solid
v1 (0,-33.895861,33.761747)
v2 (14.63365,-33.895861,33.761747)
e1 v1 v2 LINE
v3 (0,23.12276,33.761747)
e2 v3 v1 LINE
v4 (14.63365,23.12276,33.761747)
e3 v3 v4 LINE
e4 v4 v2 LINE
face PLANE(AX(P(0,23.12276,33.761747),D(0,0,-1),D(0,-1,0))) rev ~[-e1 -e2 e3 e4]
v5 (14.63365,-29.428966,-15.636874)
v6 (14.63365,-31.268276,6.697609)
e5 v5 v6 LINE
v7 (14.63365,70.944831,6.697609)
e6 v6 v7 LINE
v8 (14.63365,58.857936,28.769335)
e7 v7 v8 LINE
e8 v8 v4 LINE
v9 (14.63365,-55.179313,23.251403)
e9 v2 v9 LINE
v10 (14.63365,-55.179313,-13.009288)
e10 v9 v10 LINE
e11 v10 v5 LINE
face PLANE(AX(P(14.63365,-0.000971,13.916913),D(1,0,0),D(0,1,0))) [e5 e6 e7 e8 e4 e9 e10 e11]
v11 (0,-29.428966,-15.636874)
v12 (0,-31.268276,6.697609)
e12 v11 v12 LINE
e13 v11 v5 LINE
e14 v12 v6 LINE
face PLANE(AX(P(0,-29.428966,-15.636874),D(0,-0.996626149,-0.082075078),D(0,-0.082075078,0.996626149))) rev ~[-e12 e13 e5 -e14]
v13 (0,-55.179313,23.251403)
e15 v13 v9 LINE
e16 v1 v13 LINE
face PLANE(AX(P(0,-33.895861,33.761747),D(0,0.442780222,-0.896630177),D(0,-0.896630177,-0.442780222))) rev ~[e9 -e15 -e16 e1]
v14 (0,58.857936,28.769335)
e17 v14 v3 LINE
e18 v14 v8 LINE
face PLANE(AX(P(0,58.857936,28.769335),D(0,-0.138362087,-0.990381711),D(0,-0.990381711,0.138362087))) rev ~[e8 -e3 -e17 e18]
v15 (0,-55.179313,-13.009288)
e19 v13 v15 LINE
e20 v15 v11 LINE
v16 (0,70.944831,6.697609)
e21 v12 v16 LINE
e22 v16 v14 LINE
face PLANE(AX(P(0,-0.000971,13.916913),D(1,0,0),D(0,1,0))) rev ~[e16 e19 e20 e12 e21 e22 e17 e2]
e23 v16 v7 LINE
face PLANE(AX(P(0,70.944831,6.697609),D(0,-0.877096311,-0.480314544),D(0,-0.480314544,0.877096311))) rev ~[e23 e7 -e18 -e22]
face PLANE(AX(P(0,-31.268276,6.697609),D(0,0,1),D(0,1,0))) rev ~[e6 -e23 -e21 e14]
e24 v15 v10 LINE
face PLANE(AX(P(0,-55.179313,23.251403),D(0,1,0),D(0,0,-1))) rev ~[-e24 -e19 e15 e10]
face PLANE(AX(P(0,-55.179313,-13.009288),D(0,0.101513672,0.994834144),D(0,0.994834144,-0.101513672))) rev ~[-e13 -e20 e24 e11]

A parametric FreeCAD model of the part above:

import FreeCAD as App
import Part
import Sketcher
from FreeCAD import Vector


def add_polygon(sketch, points):
    """Adds a closed chain of lines whose ends are joined by coincident constraints."""
    first, n = sketch.GeometryCount, len(points)
    for a, b in zip(points, points[1:] + points[:1]):
        sketch.addGeometry(Part.LineSegment(App.Vector(*a, 0), App.Vector(*b, 0)), False)
    for i in range(n):
        sketch.addConstraint(Sketcher.Constraint("Coincident", first + i, 2, first + (i + 1) % n, 1))

doc = App.newDocument("Part")
body = doc.addObject("PartDesign::Body", "Body")

# Sketch on YZ plane
sketch1 = body.newObject("Sketcher::SketchObject", "Sketch")
sketch1.AttachmentSupport = (doc.getObject("YZ_Plane"), [""])
sketch1.MapMode = "FlatFace"
add_polygon(sketch1, [(-55.179313, 23.251403), (-55.179313, -13.009288), (-29.428966, -15.636874), (-31.268276, 6.697609), (70.944831, 6.697609), (58.857936, 28.769335), (23.12276, 33.761747), (-33.895861, 33.761747)])  # lines 0-7
sketch1.addConstraint(Sketcher.Constraint("Vertical", 0))
sketch1.addConstraint(Sketcher.Constraint("Horizontal", 3))
sketch1.addConstraint(Sketcher.Constraint("Horizontal", 6))
sketch1.addConstraint(Sketcher.Constraint("DistanceX", 6, 2, 6, 1, 57.018621))
sketch1.addConstraint(Sketcher.Constraint("DistanceY", 0, 2, 0, 1, 36.260691))
sketch1.addConstraint(Sketcher.Constraint("DistanceX", 1, 2, 4, 2, 88.286902))
sketch1.addConstraint(Sketcher.Constraint("Distance", 1, 25.88406))
sketch1.addConstraint(Sketcher.Constraint("Distance", 2, 22.410091))
sketch1.addConstraint(Sketcher.Constraint("Distance", 4, 25.164541))
sketch1.addConstraint(Sketcher.Constraint("DistanceX", 3, 1, 3, 2, 102.213107))
sketch1.addConstraint(Sketcher.Constraint("DistanceY", -1, 1, 2, 2, 6.697609))
sketch1.addConstraint(Sketcher.Constraint("DistanceX", -1, 1, 3, 2, 70.944831))
sketch1.addConstraint(Sketcher.Constraint("DistanceX", -1, 1, 5, 2, 23.12276))
sketch1.addConstraint(Sketcher.Constraint("DistanceX", 2, 2, 1, 2, 1.83931))
sketch1.addConstraint(Sketcher.Constraint("DistanceX", 0, 2, 4, 2, 114.037249))
sketch1.addConstraint(Sketcher.Constraint("DistanceY", 4, 2, 5, 2, 4.992412))
pad1 = body.newObject("PartDesign::Pad", "Pad")
pad1.Profile = sketch1
pad1.Length = 14.63365

doc.recompute()
